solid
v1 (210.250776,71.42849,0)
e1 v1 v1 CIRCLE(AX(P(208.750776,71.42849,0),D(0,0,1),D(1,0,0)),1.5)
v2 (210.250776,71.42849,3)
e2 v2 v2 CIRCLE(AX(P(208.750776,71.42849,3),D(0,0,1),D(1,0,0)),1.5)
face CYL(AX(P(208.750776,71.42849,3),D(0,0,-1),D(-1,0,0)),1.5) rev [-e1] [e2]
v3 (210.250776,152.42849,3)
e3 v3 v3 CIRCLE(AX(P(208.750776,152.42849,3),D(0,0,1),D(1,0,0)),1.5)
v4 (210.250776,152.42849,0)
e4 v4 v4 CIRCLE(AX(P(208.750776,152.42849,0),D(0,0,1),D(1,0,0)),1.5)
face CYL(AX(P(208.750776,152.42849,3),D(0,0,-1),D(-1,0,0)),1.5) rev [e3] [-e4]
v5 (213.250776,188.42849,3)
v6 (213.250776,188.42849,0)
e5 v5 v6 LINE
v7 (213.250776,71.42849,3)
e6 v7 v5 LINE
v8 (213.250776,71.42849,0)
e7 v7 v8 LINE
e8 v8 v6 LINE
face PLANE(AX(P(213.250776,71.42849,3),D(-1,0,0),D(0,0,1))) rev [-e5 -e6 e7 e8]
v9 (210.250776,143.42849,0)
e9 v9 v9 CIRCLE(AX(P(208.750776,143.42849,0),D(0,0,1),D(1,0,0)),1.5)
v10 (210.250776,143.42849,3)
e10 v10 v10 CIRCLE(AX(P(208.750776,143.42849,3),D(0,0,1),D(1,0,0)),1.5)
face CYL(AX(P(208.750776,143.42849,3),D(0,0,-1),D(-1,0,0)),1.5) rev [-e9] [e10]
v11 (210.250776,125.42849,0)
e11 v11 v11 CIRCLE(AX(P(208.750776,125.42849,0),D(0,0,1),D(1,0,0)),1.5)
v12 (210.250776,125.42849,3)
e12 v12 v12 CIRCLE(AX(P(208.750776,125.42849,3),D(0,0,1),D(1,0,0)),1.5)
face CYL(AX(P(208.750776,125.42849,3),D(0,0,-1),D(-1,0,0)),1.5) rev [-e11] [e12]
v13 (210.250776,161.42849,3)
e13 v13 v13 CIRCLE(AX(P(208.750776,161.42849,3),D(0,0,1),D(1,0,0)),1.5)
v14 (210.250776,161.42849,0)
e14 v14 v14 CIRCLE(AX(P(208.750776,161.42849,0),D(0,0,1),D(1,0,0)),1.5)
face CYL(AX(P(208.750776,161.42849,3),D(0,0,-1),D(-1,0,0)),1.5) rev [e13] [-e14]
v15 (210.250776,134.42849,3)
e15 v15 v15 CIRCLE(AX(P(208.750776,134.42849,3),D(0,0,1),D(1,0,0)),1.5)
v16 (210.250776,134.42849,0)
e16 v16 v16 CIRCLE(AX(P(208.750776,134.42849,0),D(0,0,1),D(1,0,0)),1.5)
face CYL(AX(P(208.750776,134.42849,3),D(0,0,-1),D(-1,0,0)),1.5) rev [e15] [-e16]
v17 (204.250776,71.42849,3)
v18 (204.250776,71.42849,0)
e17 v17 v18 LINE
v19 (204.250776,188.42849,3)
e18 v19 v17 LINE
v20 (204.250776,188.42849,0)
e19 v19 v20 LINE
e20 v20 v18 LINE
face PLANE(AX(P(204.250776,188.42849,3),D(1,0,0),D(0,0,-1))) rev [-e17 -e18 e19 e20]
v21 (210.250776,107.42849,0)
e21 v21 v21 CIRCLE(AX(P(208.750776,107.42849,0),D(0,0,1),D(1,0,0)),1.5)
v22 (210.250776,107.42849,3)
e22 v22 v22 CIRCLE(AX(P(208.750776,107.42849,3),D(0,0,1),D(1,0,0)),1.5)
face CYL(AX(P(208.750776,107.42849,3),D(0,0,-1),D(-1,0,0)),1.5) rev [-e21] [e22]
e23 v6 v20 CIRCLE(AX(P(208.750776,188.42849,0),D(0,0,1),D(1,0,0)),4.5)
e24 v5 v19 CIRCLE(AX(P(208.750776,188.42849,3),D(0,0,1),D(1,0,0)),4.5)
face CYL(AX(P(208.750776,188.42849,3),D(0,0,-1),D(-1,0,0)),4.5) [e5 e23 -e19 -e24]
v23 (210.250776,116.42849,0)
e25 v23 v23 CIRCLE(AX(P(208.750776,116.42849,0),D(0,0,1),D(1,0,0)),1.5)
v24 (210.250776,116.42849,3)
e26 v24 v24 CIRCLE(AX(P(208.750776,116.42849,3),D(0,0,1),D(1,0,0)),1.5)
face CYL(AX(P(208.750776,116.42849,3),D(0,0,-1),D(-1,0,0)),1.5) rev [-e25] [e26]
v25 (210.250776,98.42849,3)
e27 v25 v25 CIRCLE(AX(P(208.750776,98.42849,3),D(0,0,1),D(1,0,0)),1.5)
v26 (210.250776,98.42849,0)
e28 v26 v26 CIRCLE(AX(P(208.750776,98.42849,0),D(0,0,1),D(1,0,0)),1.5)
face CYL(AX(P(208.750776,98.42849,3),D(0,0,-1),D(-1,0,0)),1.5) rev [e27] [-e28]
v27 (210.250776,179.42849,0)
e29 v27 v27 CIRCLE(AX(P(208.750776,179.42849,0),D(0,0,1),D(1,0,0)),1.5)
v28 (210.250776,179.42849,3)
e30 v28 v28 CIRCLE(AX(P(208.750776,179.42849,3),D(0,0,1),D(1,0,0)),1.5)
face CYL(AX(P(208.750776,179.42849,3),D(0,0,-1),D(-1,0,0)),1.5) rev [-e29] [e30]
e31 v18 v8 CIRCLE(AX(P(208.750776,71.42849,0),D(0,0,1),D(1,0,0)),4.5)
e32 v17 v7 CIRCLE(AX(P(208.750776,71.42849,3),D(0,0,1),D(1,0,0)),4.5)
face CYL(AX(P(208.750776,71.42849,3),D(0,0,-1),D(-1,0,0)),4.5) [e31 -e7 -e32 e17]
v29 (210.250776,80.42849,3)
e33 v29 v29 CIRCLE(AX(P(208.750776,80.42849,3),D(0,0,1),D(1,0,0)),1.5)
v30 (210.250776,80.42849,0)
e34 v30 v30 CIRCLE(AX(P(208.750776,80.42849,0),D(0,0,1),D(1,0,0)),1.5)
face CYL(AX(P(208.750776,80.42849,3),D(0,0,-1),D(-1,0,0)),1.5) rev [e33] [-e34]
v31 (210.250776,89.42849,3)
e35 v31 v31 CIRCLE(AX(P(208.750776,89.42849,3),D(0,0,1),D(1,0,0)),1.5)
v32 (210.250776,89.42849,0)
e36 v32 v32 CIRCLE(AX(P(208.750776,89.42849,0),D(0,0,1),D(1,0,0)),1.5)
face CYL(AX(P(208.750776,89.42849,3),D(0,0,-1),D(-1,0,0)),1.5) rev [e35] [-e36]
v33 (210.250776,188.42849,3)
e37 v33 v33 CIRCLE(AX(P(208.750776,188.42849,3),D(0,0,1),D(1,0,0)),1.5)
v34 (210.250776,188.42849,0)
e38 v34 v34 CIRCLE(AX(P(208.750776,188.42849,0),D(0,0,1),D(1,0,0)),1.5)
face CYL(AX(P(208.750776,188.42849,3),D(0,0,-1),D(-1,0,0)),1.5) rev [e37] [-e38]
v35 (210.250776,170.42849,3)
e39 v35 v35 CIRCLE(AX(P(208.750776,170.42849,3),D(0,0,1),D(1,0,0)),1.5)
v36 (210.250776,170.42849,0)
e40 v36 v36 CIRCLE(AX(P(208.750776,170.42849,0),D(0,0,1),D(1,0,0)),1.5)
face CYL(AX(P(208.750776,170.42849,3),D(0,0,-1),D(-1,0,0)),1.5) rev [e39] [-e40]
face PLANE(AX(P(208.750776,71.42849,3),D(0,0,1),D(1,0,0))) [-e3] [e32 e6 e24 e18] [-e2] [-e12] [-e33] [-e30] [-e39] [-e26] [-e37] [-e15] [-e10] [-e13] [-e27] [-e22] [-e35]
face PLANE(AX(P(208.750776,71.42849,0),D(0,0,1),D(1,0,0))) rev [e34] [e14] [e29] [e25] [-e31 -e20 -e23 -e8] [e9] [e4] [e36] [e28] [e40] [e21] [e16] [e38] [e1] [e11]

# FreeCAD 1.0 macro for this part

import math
import FreeCAD as App
import Part
import Sketcher

V = App.Vector

doc = App.newDocument("Part")
body = doc.addObject("PartDesign::Body", "Body")

# Sketch on XY plane
sketch1 = body.newObject("Sketcher::SketchObject", "Sketch")
sketch1.AttachmentSupport = (doc.getObject("XY_Plane"), [""])
sketch1.MapMode = "FlatFace"
sketch1.addGeometry([
    Part.LineSegment(V(213.3, 71.4, 0), V(213.3, 188.4, 0)),  # 0
    Part.ArcOfCircle(Part.Circle(V(208.8, 188.4, 0), V(0, 0, 1), 4.5), math.radians(0), math.radians(180)),  # 1
    Part.LineSegment(V(204.3, 188.4, 0), V(204.3, 71.4, 0)),  # 2
    Part.ArcOfCircle(Part.Circle(V(208.8, 71.4, 0), V(0, 0, 1), 4.5), math.radians(180), math.radians(360)),  # 3
    Part.Circle(V(208.8, 71.4, 0), V(0, 0, 1), 1.5),  # 4
    Part.Circle(V(208.8, 80.4, 0), V(0, 0, 1), 1.5),  # 5
    Part.Circle(V(208.8, 89.4, 0), V(0, 0, 1), 1.5),  # 6
    Part.Circle(V(208.8, 98.4, 0), V(0, 0, 1), 1.5),  # 7
    Part.Circle(V(208.8, 107.4, 0), V(0, 0, 1), 1.5),  # 8
    Part.Circle(V(208.8, 116.4, 0), V(0, 0, 1), 1.5),  # 9
    Part.Circle(V(208.8, 125.4, 0), V(0, 0, 1), 1.5),  # 10
    Part.Circle(V(208.8, 134.4, 0), V(0, 0, 1), 1.5),  # 11
    Part.Circle(V(208.8, 143.4, 0), V(0, 0, 1), 1.5),  # 12
    Part.Circle(V(208.8, 152.4, 0), V(0, 0, 1), 1.5),  # 13
    Part.Circle(V(208.8, 161.4, 0), V(0, 0, 1), 1.5),  # 14
    Part.Circle(V(208.8, 170.4, 0), V(0, 0, 1), 1.5),  # 15
    Part.Circle(V(208.8, 179.4, 0), V(0, 0, 1), 1.5),  # 16
    Part.Circle(V(208.8, 188.4, 0), V(0, 0, 1), 1.5),  # 17
], False)
sketch1.addConstraint([
    Sketcher.Constraint("Tangent", 0, 2, 1, 1),
    Sketcher.Constraint("Tangent", 1, 2, 2, 1),
    Sketcher.Constraint("Tangent", 2, 2, 3, 1),
    Sketcher.Constraint("Tangent", 3, 2, 0, 1),
    Sketcher.Constraint("Vertical", 0),
    Sketcher.Constraint("Vertical", 2),
    Sketcher.Constraint("Coincident", 4, 3, 3, 3),
    Sketcher.Constraint("Coincident", 17, 3, 1, 3),
    Sketcher.Constraint("Equal", 4, 5),
    Sketcher.Constraint("Equal", 5, 6),
    Sketcher.Constraint("Equal", 6, 7),
    Sketcher.Constraint("Equal", 7, 8),
    Sketcher.Constraint("Equal", 8, 9),
    Sketcher.Constraint("Equal", 9, 10),
    Sketcher.Constraint("Equal", 10, 11),
    Sketcher.Constraint("Equal", 11, 12),
    Sketcher.Constraint("Equal", 12, 13),
    Sketcher.Constraint("Equal", 13, 14),
    Sketcher.Constraint("Equal", 14, 15),
    Sketcher.Constraint("Equal", 15, 16),
    Sketcher.Constraint("Equal", 16, 17),
    Sketcher.Constraint("Vertical", 4, 3, 5, 3),
    Sketcher.Constraint("Vertical", 5, 3, 6, 3),
    Sketcher.Constraint("Vertical", 6, 3, 7, 3),
    Sketcher.Constraint("Vertical", 7, 3, 8, 3),
    Sketcher.Constraint("Vertical", 8, 3, 9, 3),
    Sketcher.Constraint("Vertical", 9, 3, 10, 3),
    Sketcher.Constraint("Vertical", 10, 3, 11, 3),
    Sketcher.Constraint("Vertical", 11, 3, 12, 3),
    Sketcher.Constraint("Vertical", 12, 3, 13, 3),
    Sketcher.Constraint("Vertical", 13, 3, 14, 3),
    Sketcher.Constraint("Vertical", 14, 3, 15, 3),
    Sketcher.Constraint("Vertical", 15, 3, 16, 3),
    Sketcher.Constraint("Diameter", 4, 3.0),
    Sketcher.Constraint("Radius", 1, 4.5),
    Sketcher.Constraint("DistanceY", 0, 1, 0, 2, 117.0),
    Sketcher.Constraint("DistanceY", 3, 3, 5, 3, 9.0),
    Sketcher.Constraint("DistanceY", 5, 3, 6, 3, 9.0),
    Sketcher.Constraint("DistanceY", 6, 3, 7, 3, 9.0),
    Sketcher.Constraint("DistanceY", 7, 3, 8, 3, 9.0),
    Sketcher.Constraint("DistanceY", 8, 3, 9, 3, 9.0),
    Sketcher.Constraint("DistanceY", 9, 3, 10, 3, 9.0),
    Sketcher.Constraint("DistanceY", 10, 3, 11, 3, 9.0),
    Sketcher.Constraint("DistanceY", 11, 3, 12, 3, 9.0),
    Sketcher.Constraint("DistanceY", 12, 3, 13, 3, 9.0),
    Sketcher.Constraint("DistanceY", 13, 3, 14, 3, 9.0),
    Sketcher.Constraint("DistanceY", 14, 3, 15, 3, 9.0),
    Sketcher.Constraint("DistanceY", 16, 3, 1, 3, 9.0),
    Sketcher.Constraint("DistanceY", -1, 1, 1, 3, 188.42849),
    Sketcher.Constraint("DistanceX", -1, 1, 1, 3, 208.750776),
])
pad1 = body.newObject("PartDesign::Pad", "Pad")
pad1.Profile = sketch1
pad1.Length = 3

doc.recompute()
